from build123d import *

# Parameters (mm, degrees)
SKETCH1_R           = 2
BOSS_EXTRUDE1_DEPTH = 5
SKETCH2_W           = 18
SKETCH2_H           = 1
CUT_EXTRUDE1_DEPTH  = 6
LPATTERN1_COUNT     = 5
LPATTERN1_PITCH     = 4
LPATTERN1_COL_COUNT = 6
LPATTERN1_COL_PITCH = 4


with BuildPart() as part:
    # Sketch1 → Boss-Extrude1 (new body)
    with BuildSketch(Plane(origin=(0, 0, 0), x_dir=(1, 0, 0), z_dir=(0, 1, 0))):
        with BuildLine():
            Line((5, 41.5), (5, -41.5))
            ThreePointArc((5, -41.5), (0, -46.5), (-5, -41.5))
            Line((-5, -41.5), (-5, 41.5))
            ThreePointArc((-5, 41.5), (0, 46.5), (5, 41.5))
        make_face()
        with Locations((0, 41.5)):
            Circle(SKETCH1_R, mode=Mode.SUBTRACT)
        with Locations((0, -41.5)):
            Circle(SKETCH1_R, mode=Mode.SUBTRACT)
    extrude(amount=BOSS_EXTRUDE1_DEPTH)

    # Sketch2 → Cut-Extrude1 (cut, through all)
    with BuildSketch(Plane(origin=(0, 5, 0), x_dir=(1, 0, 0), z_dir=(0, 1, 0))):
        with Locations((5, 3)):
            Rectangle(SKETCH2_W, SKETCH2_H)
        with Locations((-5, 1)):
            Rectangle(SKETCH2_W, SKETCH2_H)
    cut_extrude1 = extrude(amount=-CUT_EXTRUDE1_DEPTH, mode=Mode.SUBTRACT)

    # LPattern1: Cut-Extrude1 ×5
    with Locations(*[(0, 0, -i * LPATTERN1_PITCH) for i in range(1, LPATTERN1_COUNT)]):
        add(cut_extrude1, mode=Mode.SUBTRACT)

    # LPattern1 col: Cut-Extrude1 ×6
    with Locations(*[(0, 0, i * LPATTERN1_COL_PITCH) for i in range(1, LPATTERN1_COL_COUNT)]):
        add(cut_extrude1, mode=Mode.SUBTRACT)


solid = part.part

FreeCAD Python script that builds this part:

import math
import FreeCAD as App
import Part
import Sketcher

V = App.Vector

doc = App.newDocument("Part")
body = doc.addObject("PartDesign::Body", "Body")

sketch1 = body.newObject("Sketcher::SketchObject", "Sketch")
sketch1.AttachmentSupport = (doc.getObject("XZ_Plane"), [""])
sketch1.MapMode = "FlatFace"
sketch1.addGeometry([
    Part.LineSegment(V(5, 41.5, 0), V(5, -41.5, 0)),
    Part.ArcOfCircle(Part.Circle(V(0, -41.5, 0), V(0, 0, 1), 5), math.radians(180), math.radians(360)),
    Part.LineSegment(V(-5, -41.5, 0), V(-5, 41.5, 0)),
    Part.ArcOfCircle(Part.Circle(V(0, 41.5, 0), V(0, 0, 1), 5), math.radians(0), math.radians(180)),
    Part.Circle(V(0, 41.5, 0), V(0, 0, 1), 2),
    Part.Circle(V(0, -41.5, 0), V(0, 0, 1), 2),
], False)
sketch1.addConstraint([
    Sketcher.Constraint("Tangent", 0, 2, 1, 2),
    Sketcher.Constraint("Tangent", 1, 1, 2, 1),
    Sketcher.Constraint("Tangent", 2, 2, 3, 2),
    Sketcher.Constraint("Tangent", 3, 1, 0, 1),
    Sketcher.Constraint("Vertical", 0),
    Sketcher.Constraint("Vertical", 2),
    Sketcher.Constraint("Coincident", 4, 3, 3, 3),
    Sketcher.Constraint("Coincident", 5, 3, 1, 3),
    Sketcher.Constraint("Equal", 4, 5),
    Sketcher.Constraint("Symmetric", 1, 3, 3, 3, -1, 1),
    Sketcher.Constraint("Diameter", 4, 4.0),
    Sketcher.Constraint("Radius", 1, 5.0),
    Sketcher.Constraint("DistanceY", 0, 2, 0, 1, 83.0),
])
pad1 = body.newObject("PartDesign::Pad", "Pad")
pad1.Profile = sketch1
pad1.Length = 5
pad1.Reversed = True

sketch2 = body.newObject("Sketcher::SketchObject", "Sketch001")
sketch2.AttachmentSupport = (doc.getObject("XZ_Plane"), [""])
sketch2.MapMode = "FlatFace"
sketch2.AttachmentOffset = App.Placement(V(0, 0, -5), App.Rotation())
sketch2.addGeometry([
    Part.LineSegment(V(-4, -3.5, 0), V(-4, -2.5, 0)),
    Part.LineSegment(V(-4, -2.5, 0), V(14, -2.5, 0)),
    Part.LineSegment(V(14, -2.5, 0), V(14, -3.5, 0)),
    Part.LineSegment(V(14, -3.5, 0), V(-4, -3.5, 0)),
    Part.LineSegment(V(-14, -1.5, 0), V(-14, -0.5, 0)),
    Part.LineSegment(V(-14, -0.5, 0), V(4, -0.5, 0)),
    Part.LineSegment(V(4, -0.5, 0), V(4, -1.5, 0)),
    Part.LineSegment(V(4, -1.5, 0), V(-14, -1.5, 0)),
], False)
sketch2.addConstraint([
    Sketcher.Constraint("Coincident", 0, 2, 1, 1),
    Sketcher.Constraint("Coincident", 1, 2, 2, 1),
    Sketcher.Constraint("Coincident", 2, 2, 3, 1),
    Sketcher.Constraint("Coincident", 3, 2, 0, 1),
    Sketcher.Constraint("Coincident", 4, 2, 5, 1),
    Sketcher.Constraint("Coincident", 5, 2, 6, 1),
    Sketcher.Constraint("Coincident", 6, 2, 7, 1),
    Sketcher.Constraint("Coincident", 7, 2, 4, 1),
    Sketcher.Constraint("Vertical", 0),
    Sketcher.Constraint("Horizontal", 1),
    Sketcher.Constraint("Vertical", 2),
    Sketcher.Constraint("Horizontal", 3),
    Sketcher.Constraint("Vertical", 4),
    Sketcher.Constraint("Horizontal", 5),
    Sketcher.Constraint("Vertical", 6),
    Sketcher.Constraint("Horizontal", 7),
    Sketcher.Constraint("Equal", 3, 5),
    Sketcher.Constraint("Equal", 2, 4),
    Sketcher.Constraint("DistanceX", 1, 1, 1, 2, 18.0),
    Sketcher.Constraint("DistanceY", 0, 1, 0, 2, 1.0),
    Sketcher.Constraint("DistanceX", 0, 2, -1, 1, 4.0),
    Sketcher.Constraint("DistanceX", 4, 2, -1, 1, 14.0),
    Sketcher.Constraint("DistanceY", 0, 2, 4, 2, 2.0),
    Sketcher.Constraint("DistanceY", 0, 2, -1, 1, 2.5),
])
pocket1 = body.newObject("PartDesign::Pocket", "Pocket")
pocket1.Profile = sketch2
pocket1.Type = "ThroughAll"
pocket1.Reversed = True
doc.recompute()

linearpattern = body.newObject("PartDesign::LinearPattern", "LinearPattern")
linearpattern.Originals = [pocket1]
linearpattern.Direction = (doc.getObject("Z_Axis"), [""])
linearpattern.Mode = "offset"
linearpattern.Offset = 4
linearpattern.Occurrences = 5
linearpattern.Reversed = True
body.Tip = linearpattern
doc.recompute()

linearpattern2 = body.newObject("PartDesign::LinearPattern", "LinearPattern001")
linearpattern2.Originals = [pocket1]
linearpattern2.Direction = (doc.getObject("Z_Axis"), [""])
linearpattern2.Mode = "offset"
linearpattern2.Offset = 4
linearpattern2.Occurrences = 6
body.Tip = linearpattern2

doc.recompute()
